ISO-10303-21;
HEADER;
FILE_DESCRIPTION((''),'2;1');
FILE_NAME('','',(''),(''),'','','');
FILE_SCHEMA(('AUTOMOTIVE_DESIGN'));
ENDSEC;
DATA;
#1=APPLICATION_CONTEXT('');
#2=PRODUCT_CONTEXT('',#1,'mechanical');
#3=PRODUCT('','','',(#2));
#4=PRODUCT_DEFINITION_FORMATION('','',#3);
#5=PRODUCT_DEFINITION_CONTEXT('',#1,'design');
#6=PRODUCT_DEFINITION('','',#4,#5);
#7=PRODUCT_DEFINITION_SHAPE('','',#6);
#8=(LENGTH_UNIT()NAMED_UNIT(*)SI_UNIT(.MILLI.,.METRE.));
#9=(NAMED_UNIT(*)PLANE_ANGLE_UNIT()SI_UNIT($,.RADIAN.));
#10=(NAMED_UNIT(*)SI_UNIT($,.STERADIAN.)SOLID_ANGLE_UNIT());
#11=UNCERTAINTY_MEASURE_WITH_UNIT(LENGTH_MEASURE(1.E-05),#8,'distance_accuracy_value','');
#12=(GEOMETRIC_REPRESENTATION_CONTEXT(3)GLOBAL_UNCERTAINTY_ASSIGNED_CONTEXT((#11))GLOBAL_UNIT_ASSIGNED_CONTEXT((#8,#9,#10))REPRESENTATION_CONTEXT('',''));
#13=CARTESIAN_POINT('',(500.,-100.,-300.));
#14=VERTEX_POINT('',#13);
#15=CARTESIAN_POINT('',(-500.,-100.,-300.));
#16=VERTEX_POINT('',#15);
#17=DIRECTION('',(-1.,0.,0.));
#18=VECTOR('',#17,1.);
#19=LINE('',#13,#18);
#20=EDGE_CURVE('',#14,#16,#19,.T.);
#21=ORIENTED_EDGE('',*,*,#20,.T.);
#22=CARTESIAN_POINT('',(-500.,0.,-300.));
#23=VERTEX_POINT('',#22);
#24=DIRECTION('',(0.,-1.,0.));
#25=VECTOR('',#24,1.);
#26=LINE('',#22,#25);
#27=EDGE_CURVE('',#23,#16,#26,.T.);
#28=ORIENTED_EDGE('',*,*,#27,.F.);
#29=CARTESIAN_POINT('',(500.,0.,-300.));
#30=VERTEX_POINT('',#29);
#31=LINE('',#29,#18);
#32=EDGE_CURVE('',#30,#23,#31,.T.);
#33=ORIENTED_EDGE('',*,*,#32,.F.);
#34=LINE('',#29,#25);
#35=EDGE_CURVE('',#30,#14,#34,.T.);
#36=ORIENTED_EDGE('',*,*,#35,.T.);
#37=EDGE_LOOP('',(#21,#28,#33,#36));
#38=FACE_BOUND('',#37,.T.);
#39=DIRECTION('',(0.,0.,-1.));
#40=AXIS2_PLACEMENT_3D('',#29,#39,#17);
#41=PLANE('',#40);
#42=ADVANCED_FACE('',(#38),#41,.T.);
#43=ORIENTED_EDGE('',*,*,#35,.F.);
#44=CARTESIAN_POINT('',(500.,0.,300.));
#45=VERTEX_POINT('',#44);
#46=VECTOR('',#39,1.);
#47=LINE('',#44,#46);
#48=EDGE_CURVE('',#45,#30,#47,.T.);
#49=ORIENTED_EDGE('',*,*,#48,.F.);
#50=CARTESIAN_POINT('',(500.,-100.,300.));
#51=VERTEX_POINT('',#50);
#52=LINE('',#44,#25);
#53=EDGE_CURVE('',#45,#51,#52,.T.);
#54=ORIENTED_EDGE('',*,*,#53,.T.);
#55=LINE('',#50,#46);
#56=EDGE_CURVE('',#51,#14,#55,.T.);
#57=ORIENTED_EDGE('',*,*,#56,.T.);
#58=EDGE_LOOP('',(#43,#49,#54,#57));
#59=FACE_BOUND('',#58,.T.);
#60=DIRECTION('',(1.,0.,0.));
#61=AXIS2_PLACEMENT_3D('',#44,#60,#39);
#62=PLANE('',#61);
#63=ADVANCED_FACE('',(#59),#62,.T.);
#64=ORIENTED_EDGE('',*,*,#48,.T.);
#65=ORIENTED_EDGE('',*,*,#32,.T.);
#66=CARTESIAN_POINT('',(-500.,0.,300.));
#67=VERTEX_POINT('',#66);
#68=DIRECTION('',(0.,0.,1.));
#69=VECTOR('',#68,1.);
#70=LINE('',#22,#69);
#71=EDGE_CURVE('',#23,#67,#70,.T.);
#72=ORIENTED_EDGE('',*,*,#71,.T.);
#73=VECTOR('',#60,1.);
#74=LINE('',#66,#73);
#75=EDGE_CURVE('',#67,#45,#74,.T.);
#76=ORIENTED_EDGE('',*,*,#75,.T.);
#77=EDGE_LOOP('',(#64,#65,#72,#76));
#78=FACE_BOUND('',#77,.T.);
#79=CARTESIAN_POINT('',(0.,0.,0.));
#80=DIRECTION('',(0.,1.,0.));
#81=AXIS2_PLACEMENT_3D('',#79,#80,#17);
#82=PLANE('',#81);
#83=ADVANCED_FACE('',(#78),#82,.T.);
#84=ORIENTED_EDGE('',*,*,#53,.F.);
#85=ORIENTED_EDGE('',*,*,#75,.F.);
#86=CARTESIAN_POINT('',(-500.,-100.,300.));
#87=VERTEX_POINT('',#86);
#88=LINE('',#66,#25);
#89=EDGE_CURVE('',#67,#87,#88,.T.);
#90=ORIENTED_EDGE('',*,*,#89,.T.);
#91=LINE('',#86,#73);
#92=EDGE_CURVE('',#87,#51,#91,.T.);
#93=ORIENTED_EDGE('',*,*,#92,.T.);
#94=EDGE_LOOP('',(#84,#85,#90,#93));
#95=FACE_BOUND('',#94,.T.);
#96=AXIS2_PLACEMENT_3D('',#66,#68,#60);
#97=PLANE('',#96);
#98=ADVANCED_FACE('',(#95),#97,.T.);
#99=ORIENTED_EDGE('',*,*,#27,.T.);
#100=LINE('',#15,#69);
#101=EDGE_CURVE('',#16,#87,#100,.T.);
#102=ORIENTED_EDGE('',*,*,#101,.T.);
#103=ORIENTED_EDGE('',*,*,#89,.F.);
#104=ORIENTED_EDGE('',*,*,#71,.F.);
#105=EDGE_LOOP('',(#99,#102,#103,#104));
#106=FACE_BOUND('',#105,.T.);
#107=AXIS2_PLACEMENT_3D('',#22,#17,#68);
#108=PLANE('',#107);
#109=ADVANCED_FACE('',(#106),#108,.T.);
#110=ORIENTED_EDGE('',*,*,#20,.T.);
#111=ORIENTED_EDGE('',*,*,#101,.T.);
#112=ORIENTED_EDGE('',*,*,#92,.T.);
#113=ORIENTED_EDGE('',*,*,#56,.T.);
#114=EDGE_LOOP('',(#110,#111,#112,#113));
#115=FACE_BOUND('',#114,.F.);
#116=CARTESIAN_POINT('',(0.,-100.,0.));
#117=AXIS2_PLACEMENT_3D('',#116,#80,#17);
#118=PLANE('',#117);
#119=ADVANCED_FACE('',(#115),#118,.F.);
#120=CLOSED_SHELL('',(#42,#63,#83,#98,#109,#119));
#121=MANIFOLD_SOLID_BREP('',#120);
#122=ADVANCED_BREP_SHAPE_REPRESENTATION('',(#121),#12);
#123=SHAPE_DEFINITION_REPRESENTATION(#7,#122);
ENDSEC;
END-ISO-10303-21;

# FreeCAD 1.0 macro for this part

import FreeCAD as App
import Part
import Sketcher
Q = App.Units.Quantity

doc = App.newDocument("Part")
params = doc.addObject("Spreadsheet::Sheet", "Params")
for row, (alias, value) in enumerate([
    ("sketch1_width", "1000 mm"),
    ("sketch1_height", "600 mm"),
    ("pad1_length", "100 mm"),
], start=1):
    params.set(f"A{row}", alias)
    params.set(f"B{row}", "=" + value)
    params.setAlias(f"B{row}", alias)

body = doc.addObject("PartDesign::Body", "Body")

# Sketch on XZ plane
sketch1 = body.newObject("Sketcher::SketchObject", "Sketch")
sketch1.AttachmentSupport = (doc.getObject("XZ_Plane"), [""])
sketch1.MapMode = "FlatFace"
sketch1.addGeometry(Part.LineSegment(App.Vector(500, 300, 0), App.Vector(500, -300, 0)), False)
sketch1.addGeometry(Part.LineSegment(App.Vector(500, -300, 0), App.Vector(-500, -300, 0)), False)
sketch1.addGeometry(Part.LineSegment(App.Vector(-500, -300, 0), App.Vector(-500, 300, 0)), False)
sketch1.addGeometry(Part.LineSegment(App.Vector(-500, 300, 0), App.Vector(500, 300, 0)), False)
sketch1.addConstraint(Sketcher.Constraint("Coincident", 0, 2, 1, 1))
sketch1.addConstraint(Sketcher.Constraint("Coincident", 1, 2, 2, 1))
sketch1.addConstraint(Sketcher.Constraint("Coincident", 2, 2, 3, 1))
sketch1.addConstraint(Sketcher.Constraint("Coincident", 3, 2, 0, 1))
sketch1.addConstraint(Sketcher.Constraint("Vertical", 0))
sketch1.addConstraint(Sketcher.Constraint("Horizontal", 1))
sketch1.addConstraint(Sketcher.Constraint("Vertical", 2))
sketch1.addConstraint(Sketcher.Constraint("Horizontal", 3))
sketch1.addConstraint(Sketcher.Constraint("Symmetric", 0, 2, 2, 2, -1, 1))
sketch1.addConstraint(Sketcher.Constraint("DistanceX", 1, 2, 1, 1, Q("1000 mm")))
sketch1.addConstraint(Sketcher.Constraint("DistanceY", 0, 2, 0, 1, Q("600 mm")))
sketch1.setExpression("Constraints[9]", "Params.sketch1_width")
sketch1.setExpression("Constraints[10]", "Params.sketch1_height")
pad1 = body.newObject("PartDesign::Pad", "Pad")
pad1.Profile = sketch1
pad1.setExpression("Length", "Params.pad1_length")

doc.recompute()
